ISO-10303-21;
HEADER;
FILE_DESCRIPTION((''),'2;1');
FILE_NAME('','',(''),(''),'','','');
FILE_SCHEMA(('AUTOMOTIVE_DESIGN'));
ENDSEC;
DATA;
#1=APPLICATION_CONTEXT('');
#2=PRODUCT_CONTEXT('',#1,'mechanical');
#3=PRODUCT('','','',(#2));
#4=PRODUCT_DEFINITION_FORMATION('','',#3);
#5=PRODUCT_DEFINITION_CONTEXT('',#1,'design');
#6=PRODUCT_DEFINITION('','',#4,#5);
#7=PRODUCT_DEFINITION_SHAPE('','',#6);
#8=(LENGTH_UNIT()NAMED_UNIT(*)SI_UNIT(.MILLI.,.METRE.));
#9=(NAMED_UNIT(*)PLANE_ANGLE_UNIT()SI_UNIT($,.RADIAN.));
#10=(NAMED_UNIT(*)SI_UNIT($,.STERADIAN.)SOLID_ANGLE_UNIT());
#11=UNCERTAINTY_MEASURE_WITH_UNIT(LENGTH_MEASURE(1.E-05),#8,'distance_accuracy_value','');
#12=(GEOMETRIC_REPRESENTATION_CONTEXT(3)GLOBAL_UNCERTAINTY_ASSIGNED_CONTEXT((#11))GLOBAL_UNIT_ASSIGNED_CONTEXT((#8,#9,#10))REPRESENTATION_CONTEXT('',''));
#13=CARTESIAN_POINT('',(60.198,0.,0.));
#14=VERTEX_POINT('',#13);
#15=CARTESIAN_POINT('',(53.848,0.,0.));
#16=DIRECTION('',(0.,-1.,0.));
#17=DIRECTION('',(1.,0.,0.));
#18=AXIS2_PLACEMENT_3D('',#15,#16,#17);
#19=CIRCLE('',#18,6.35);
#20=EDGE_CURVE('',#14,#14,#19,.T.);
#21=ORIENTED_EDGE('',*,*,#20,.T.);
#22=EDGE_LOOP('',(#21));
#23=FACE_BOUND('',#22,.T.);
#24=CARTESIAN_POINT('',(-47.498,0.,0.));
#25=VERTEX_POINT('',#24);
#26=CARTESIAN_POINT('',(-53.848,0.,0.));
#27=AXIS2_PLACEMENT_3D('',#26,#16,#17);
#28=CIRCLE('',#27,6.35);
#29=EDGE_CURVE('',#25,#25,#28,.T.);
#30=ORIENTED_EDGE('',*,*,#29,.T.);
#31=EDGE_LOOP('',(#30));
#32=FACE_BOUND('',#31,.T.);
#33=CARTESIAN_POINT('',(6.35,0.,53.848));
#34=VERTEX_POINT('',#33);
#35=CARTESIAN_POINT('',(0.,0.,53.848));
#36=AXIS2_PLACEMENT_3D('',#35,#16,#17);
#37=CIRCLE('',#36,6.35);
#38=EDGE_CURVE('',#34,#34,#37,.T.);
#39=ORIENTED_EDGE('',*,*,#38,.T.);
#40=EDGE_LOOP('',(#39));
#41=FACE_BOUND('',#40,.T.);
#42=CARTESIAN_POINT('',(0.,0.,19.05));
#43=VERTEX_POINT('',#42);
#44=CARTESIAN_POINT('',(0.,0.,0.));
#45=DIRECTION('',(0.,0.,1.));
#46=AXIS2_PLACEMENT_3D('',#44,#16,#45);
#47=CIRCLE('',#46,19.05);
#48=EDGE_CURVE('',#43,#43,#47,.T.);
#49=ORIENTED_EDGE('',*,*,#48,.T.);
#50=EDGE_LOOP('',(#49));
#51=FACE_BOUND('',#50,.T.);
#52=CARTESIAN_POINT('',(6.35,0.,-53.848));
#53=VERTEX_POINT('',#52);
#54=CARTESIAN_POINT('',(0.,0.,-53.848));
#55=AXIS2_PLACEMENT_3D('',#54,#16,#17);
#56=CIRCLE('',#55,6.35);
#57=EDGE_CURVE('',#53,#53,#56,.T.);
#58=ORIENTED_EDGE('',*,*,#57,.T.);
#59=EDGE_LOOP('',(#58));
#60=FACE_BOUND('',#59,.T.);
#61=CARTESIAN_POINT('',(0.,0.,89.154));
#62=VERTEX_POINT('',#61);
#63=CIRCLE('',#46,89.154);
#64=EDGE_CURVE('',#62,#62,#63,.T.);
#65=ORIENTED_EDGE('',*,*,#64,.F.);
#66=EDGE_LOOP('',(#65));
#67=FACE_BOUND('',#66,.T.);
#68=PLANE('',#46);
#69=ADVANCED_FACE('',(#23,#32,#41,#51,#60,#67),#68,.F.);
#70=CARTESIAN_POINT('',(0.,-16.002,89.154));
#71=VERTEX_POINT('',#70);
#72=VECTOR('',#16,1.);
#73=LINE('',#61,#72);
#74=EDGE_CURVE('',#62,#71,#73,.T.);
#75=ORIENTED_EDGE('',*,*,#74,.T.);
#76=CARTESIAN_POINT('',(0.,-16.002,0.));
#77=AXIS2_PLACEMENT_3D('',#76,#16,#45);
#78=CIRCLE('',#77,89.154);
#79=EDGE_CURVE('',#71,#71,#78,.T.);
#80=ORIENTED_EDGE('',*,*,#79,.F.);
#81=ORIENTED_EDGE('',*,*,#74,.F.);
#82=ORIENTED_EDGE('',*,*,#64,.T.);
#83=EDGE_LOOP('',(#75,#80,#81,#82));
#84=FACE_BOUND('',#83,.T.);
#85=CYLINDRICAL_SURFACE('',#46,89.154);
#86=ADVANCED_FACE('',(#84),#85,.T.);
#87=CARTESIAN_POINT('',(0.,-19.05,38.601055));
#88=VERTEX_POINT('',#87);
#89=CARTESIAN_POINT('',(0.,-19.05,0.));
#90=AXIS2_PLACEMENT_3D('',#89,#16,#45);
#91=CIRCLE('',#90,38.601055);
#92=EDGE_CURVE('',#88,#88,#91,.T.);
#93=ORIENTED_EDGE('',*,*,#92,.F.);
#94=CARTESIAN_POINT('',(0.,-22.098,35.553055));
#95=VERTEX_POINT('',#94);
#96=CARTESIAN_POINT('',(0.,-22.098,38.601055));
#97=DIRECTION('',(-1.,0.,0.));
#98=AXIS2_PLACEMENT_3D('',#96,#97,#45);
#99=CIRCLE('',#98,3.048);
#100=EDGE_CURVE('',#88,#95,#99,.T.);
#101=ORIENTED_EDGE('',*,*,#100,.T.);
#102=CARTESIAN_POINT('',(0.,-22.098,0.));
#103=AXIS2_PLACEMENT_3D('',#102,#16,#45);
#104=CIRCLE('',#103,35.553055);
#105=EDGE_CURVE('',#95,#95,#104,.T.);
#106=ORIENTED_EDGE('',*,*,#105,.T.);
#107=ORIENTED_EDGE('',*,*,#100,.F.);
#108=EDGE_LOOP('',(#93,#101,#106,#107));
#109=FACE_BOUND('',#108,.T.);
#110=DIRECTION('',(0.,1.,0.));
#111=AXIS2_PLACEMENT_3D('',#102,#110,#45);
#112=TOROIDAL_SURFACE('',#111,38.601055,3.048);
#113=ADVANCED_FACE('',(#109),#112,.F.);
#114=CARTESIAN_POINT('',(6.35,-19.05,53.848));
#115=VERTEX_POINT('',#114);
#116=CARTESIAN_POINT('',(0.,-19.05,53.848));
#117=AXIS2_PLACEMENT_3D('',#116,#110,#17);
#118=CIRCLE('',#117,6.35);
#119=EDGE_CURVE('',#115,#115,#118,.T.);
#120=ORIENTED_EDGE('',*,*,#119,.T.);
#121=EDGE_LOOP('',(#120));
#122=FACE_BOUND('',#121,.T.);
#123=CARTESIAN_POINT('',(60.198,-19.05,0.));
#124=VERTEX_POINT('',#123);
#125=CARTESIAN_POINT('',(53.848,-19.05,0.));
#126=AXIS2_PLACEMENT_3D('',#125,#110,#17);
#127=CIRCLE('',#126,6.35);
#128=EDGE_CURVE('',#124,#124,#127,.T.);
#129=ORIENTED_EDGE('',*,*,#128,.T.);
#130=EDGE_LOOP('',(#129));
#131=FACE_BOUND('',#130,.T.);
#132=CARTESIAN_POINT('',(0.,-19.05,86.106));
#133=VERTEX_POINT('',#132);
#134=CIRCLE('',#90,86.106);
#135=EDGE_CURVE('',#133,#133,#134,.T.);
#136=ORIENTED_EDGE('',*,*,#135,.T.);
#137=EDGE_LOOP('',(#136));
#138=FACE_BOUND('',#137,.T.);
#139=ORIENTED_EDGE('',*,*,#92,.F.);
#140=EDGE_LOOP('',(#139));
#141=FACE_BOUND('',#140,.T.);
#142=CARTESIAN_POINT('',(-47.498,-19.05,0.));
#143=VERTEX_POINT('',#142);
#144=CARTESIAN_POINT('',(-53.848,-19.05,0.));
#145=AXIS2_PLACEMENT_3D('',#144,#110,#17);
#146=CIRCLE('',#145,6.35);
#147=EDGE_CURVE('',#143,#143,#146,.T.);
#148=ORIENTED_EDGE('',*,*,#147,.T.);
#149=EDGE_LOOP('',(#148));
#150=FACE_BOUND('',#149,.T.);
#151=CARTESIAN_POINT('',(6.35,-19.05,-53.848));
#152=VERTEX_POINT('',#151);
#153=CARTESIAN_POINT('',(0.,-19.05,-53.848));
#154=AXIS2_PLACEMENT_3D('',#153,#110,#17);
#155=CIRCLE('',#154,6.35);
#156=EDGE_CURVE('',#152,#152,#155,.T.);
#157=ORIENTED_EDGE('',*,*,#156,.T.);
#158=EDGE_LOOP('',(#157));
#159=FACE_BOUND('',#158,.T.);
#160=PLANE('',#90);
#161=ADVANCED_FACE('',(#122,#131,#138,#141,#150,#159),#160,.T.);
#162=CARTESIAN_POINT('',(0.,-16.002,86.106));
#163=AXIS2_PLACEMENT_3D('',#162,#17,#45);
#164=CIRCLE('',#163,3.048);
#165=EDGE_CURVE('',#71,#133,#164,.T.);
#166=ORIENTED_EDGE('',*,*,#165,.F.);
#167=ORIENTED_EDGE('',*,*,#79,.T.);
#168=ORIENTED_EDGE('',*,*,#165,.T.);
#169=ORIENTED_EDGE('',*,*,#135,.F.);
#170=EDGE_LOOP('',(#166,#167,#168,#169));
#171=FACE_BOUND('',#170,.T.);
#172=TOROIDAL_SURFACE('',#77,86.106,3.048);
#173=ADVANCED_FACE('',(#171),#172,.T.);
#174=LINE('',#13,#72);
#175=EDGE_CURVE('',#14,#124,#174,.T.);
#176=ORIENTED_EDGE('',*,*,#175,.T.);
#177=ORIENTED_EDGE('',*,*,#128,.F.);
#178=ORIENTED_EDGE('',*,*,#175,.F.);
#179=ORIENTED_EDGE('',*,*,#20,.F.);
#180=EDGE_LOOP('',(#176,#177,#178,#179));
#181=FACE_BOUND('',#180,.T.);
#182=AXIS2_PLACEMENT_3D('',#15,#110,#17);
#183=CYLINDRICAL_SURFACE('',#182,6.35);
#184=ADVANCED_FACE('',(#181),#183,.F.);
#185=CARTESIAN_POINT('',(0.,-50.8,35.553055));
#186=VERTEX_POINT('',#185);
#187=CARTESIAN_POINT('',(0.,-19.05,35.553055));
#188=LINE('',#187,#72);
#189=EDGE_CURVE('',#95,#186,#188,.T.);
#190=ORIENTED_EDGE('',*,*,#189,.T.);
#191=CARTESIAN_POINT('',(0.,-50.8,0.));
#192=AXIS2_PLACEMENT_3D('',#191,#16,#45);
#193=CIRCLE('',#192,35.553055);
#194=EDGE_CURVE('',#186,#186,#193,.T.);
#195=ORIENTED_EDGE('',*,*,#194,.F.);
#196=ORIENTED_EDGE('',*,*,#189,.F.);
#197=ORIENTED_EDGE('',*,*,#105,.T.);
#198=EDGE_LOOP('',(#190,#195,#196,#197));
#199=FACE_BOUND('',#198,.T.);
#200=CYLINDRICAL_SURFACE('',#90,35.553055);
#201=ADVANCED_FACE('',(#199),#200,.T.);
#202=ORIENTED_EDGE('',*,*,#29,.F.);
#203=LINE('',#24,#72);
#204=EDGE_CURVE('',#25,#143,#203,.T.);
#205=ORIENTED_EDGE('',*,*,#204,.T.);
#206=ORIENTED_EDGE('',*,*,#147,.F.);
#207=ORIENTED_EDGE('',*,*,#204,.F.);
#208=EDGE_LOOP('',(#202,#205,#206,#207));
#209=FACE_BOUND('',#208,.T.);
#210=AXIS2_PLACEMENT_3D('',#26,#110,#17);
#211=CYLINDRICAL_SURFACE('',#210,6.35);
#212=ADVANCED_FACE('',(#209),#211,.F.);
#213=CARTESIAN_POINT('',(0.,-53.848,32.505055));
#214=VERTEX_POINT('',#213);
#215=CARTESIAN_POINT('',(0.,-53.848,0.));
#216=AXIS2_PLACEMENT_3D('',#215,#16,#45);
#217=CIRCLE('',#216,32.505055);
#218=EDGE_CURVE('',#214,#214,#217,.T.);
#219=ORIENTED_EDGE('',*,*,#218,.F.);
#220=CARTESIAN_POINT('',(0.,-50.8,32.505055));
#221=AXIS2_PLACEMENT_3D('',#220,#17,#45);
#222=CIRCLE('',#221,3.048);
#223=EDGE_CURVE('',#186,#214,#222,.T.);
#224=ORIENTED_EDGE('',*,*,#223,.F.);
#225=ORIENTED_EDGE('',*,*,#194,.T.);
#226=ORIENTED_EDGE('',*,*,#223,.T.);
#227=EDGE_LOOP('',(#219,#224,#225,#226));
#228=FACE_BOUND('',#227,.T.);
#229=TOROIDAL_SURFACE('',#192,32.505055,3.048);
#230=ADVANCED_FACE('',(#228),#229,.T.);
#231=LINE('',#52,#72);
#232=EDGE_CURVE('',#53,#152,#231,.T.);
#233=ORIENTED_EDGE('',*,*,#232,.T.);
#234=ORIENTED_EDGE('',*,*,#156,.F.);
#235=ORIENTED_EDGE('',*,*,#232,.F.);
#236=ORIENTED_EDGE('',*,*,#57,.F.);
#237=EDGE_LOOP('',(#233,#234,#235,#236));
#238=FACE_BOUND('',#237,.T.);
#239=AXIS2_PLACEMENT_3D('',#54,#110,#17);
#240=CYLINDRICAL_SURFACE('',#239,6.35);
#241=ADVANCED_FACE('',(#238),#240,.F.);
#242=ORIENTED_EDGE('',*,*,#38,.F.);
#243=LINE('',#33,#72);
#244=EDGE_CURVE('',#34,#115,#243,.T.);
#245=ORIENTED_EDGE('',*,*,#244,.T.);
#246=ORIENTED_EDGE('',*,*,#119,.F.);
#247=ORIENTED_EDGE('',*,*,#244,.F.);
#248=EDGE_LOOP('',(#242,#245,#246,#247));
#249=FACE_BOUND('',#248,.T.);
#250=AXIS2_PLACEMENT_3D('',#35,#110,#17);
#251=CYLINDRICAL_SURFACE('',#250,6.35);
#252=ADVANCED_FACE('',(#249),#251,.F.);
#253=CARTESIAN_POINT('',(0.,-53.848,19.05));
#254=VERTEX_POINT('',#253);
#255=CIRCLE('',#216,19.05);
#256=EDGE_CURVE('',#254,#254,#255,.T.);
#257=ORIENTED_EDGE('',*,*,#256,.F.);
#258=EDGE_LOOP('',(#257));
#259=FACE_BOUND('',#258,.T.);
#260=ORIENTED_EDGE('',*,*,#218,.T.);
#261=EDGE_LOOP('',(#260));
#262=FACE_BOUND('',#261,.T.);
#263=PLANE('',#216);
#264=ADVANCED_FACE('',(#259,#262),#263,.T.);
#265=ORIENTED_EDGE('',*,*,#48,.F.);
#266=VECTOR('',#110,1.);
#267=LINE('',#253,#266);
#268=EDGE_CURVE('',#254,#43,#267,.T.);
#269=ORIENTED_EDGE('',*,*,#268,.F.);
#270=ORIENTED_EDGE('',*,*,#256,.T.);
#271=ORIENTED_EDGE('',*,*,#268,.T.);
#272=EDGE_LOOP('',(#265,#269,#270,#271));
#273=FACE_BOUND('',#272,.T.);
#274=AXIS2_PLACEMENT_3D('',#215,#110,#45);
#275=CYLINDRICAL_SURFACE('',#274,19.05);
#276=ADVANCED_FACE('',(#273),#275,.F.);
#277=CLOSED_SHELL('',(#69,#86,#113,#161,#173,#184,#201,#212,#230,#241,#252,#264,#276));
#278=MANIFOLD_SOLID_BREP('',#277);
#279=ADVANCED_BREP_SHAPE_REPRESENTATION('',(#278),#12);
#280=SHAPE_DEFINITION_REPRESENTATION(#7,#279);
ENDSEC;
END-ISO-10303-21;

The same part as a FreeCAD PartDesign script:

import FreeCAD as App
import Part
import Sketcher

V = App.Vector
Q = App.Units.Quantity


def edges_at(feature, points):
    """Names of the edges that pass closest to the given points."""
    edges = feature.Shape.Edges
    near = lambda p: min(range(len(edges)), key=lambda i: edges[i].distToShape(Part.Vertex(*p))[0])
    return sorted({f"Edge{near(p) + 1}" for p in points})


def add_polygon(sketch, points):
    """Adds a closed chain of lines whose ends are joined by coincident constraints."""
    first, n = sketch.GeometryCount, len(points)
    for a, b in zip(points, points[1:] + points[:1]):
        sketch.addGeometry(Part.LineSegment(App.Vector(*a, 0), App.Vector(*b, 0)), False)
    for i in range(n):
        sketch.addConstraint(Sketcher.Constraint("Coincident", first + i, 2, first + (i + 1) % n, 1))

doc = App.newDocument("Part")
body = doc.addObject("PartDesign::Body", "Body")

sketch1 = body.newObject("Sketcher::SketchObject", "Sketch")
sketch1.AttachmentSupport = (doc.getObject("YZ_Plane"), [""])
sketch1.MapMode = "FlatFace"
add_polygon(sketch1, [(-54, 19), (0, 19), (0, 89), (-19, 89), (-19, 36), (-54, 36)])
sketch1.addConstraint([
    Sketcher.Constraint("Horizontal", 0),
    Sketcher.Constraint("Vertical", 1),
    Sketcher.Constraint("Horizontal", 2),
    Sketcher.Constraint("Vertical", 3),
    Sketcher.Constraint("Horizontal", 4),
    Sketcher.Constraint("Vertical", 5),
    Sketcher.Constraint("PointOnObject", 0, 2, -2),
    Sketcher.Constraint("DistanceX", 0, 1, 0, 2, Q("2.12 in")),
    Sketcher.Constraint("DistanceX", 2, 2, 2, 1, Q("0.75 in")),
    Sketcher.Constraint("DistanceY", 1, 1, 1, 2, Q("2.76 in")),
    Sketcher.Constraint("DistanceY", -1, 1, 0, 2, Q("0.75 in")),
    Sketcher.Constraint("DistanceY", 3, 2, 3, 1, 53.600945),
])
revolution = body.newObject("PartDesign::Revolution", "Revolution")
revolution.Profile = sketch1
revolution.ReferenceAxis = (sketch1, ["H_Axis"])
revolution.Angle = 360
doc.recompute()

fillet = body.newObject("PartDesign::Fillet", "Fillet")
fillet.Base = (revolution, edges_at(revolution, [(0, -19.05, -89.154), (0, -19.05, -35.553), (0, -53.848, -35.553)]))
fillet.Radius = Q("0.12 in")

sketch2 = body.newObject("Sketcher::SketchObject", "Sketch001")
sketch2.AttachmentSupport = (doc.getObject("XZ_Plane"), [""])
sketch2.MapMode = "FlatFace"
sketch2.addGeometry([
    Part.Circle(V(0, 54, 0), V(0, 0, 1), 6),
    Part.Circle(V(54, 0, 0), V(0, 0, 1), 6),
    Part.Circle(V(-54, 0, 0), V(0, 0, 1), 6),
    Part.Circle(V(0, -54, 0), V(0, 0, 1), 6),
], False)
sketch2.addConstraint([
    Sketcher.Constraint("Equal", 0, 1),
    Sketcher.Constraint("Equal", 1, 2),
    Sketcher.Constraint("Equal", 2, 3),
    Sketcher.Constraint("Symmetric", 1, 3, 2, 3, -1, 1),
    Sketcher.Constraint("Symmetric", 0, 3, 3, 3, -1, 1),
    Sketcher.Constraint("PointOnObject", 0, 3, -2),
    Sketcher.Constraint("PointOnObject", 1, 3, -1),
    Sketcher.Constraint("Diameter", 0, Q("0.5 in")),
    Sketcher.Constraint("DistanceY", -1, 1, 0, 3, Q("2.12 in")),
    Sketcher.Constraint("DistanceX", -1, 1, 1, 3, Q("2.12 in")),
])
pocket1 = body.newObject("PartDesign::Pocket", "Pocket")
pocket1.Profile = sketch2
pocket1.Type = "ThroughAll"
pocket1.Reversed = True

doc.recompute()
